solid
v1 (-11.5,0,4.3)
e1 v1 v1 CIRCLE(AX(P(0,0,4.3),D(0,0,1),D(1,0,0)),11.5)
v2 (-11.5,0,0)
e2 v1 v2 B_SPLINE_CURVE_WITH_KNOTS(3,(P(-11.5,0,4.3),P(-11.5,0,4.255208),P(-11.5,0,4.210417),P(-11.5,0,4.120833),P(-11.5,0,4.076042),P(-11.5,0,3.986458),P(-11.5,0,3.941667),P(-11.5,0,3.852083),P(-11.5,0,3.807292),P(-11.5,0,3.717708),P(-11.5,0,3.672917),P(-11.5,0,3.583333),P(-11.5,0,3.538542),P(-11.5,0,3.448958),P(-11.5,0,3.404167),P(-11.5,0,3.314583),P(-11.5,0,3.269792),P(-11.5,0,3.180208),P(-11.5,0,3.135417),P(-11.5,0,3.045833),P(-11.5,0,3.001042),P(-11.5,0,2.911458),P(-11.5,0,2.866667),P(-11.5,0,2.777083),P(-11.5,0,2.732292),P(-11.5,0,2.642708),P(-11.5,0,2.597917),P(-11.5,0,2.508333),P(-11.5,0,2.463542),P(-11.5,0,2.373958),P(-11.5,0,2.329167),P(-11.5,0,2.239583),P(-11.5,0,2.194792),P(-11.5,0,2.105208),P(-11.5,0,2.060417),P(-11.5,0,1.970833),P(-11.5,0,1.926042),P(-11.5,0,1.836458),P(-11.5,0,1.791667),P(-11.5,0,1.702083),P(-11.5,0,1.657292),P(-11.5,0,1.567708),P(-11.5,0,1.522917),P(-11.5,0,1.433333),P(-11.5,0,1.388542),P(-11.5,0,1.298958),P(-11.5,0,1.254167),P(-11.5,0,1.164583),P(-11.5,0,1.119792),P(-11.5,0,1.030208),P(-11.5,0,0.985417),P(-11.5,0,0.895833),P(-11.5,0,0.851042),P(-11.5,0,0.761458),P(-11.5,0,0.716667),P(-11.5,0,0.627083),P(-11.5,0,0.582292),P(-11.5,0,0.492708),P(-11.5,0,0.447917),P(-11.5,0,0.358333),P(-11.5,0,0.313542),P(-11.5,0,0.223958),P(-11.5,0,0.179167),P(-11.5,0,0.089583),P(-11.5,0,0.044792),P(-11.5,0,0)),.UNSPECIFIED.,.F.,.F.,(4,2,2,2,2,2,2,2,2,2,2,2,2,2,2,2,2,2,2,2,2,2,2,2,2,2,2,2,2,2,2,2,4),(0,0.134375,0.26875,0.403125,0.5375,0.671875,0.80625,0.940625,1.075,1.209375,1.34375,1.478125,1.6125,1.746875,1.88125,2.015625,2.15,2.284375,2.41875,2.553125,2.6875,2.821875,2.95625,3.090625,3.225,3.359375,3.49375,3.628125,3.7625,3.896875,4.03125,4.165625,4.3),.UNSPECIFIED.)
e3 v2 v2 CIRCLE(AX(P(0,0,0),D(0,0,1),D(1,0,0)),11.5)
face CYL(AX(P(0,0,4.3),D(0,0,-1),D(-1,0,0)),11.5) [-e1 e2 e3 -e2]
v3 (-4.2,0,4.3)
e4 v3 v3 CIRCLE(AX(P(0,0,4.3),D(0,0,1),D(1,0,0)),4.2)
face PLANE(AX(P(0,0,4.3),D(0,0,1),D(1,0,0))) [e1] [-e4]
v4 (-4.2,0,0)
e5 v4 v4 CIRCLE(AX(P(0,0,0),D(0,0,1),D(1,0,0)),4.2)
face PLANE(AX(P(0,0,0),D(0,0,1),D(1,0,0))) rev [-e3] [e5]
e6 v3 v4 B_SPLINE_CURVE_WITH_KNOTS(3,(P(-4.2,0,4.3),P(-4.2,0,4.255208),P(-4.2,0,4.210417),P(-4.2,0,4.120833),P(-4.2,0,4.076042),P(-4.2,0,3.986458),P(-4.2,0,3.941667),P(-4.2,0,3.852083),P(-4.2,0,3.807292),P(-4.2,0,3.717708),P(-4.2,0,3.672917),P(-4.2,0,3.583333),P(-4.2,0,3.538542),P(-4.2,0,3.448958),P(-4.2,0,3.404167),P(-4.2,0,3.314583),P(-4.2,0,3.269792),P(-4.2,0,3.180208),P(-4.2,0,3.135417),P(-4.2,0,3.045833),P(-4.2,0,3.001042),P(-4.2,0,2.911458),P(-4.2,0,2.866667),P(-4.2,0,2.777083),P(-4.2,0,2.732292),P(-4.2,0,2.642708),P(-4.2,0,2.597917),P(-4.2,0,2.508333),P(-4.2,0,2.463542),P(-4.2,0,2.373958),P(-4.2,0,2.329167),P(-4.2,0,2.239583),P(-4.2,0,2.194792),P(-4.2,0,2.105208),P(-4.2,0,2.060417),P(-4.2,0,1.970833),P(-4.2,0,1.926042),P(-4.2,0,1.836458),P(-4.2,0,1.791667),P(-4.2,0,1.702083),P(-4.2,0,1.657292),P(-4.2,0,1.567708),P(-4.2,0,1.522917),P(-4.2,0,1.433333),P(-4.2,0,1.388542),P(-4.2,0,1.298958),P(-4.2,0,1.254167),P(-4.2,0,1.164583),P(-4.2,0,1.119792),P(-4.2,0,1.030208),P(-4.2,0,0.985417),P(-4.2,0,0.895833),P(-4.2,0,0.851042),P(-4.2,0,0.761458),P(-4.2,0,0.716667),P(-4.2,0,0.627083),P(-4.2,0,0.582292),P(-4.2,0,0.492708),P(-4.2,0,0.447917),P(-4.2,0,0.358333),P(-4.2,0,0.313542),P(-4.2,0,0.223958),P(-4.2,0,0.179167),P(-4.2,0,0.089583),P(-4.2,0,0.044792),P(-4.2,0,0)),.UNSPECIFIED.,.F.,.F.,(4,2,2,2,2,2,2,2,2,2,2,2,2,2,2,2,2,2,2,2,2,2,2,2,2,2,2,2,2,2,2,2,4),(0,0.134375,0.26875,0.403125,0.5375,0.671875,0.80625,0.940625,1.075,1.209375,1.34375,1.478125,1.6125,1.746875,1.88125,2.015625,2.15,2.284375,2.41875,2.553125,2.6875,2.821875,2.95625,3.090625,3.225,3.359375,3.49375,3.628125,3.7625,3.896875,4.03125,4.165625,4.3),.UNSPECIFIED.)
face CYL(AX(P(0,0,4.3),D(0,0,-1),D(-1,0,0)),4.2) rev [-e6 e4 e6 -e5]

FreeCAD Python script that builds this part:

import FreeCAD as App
import Part
import Sketcher

V = App.Vector
Q = App.Units.Quantity

doc = App.newDocument("Part")
body = doc.addObject("PartDesign::Body", "Body")

# Sketch on XY plane
sketch1 = body.newObject("Sketcher::SketchObject", "Sketch")
sketch1.AttachmentSupport = (doc.getObject("XY_Plane"), [""])
sketch1.MapMode = "FlatFace"
sketch1.addGeometry(Part.Circle(V(0, 0, 0), V(0, 0, 1), 11.5), False)
sketch1.addGeometry(Part.Circle(V(0, 0, 0), V(0, 0, 1), 4.2), False)
sketch1.addConstraint(Sketcher.Constraint("Coincident", 0, 3, -1, 1))
sketch1.addConstraint(Sketcher.Constraint("Coincident", 1, 3, -1, 1))
sketch1.addConstraint(Sketcher.Constraint("Diameter", 0, Q("23 mm")))
sketch1.addConstraint(Sketcher.Constraint("Diameter", 1, Q("8.4 mm")))
pad1 = body.newObject("PartDesign::Pad", "Pad")
pad1.Profile = sketch1
pad1.Length = 4.3

doc.recompute()
